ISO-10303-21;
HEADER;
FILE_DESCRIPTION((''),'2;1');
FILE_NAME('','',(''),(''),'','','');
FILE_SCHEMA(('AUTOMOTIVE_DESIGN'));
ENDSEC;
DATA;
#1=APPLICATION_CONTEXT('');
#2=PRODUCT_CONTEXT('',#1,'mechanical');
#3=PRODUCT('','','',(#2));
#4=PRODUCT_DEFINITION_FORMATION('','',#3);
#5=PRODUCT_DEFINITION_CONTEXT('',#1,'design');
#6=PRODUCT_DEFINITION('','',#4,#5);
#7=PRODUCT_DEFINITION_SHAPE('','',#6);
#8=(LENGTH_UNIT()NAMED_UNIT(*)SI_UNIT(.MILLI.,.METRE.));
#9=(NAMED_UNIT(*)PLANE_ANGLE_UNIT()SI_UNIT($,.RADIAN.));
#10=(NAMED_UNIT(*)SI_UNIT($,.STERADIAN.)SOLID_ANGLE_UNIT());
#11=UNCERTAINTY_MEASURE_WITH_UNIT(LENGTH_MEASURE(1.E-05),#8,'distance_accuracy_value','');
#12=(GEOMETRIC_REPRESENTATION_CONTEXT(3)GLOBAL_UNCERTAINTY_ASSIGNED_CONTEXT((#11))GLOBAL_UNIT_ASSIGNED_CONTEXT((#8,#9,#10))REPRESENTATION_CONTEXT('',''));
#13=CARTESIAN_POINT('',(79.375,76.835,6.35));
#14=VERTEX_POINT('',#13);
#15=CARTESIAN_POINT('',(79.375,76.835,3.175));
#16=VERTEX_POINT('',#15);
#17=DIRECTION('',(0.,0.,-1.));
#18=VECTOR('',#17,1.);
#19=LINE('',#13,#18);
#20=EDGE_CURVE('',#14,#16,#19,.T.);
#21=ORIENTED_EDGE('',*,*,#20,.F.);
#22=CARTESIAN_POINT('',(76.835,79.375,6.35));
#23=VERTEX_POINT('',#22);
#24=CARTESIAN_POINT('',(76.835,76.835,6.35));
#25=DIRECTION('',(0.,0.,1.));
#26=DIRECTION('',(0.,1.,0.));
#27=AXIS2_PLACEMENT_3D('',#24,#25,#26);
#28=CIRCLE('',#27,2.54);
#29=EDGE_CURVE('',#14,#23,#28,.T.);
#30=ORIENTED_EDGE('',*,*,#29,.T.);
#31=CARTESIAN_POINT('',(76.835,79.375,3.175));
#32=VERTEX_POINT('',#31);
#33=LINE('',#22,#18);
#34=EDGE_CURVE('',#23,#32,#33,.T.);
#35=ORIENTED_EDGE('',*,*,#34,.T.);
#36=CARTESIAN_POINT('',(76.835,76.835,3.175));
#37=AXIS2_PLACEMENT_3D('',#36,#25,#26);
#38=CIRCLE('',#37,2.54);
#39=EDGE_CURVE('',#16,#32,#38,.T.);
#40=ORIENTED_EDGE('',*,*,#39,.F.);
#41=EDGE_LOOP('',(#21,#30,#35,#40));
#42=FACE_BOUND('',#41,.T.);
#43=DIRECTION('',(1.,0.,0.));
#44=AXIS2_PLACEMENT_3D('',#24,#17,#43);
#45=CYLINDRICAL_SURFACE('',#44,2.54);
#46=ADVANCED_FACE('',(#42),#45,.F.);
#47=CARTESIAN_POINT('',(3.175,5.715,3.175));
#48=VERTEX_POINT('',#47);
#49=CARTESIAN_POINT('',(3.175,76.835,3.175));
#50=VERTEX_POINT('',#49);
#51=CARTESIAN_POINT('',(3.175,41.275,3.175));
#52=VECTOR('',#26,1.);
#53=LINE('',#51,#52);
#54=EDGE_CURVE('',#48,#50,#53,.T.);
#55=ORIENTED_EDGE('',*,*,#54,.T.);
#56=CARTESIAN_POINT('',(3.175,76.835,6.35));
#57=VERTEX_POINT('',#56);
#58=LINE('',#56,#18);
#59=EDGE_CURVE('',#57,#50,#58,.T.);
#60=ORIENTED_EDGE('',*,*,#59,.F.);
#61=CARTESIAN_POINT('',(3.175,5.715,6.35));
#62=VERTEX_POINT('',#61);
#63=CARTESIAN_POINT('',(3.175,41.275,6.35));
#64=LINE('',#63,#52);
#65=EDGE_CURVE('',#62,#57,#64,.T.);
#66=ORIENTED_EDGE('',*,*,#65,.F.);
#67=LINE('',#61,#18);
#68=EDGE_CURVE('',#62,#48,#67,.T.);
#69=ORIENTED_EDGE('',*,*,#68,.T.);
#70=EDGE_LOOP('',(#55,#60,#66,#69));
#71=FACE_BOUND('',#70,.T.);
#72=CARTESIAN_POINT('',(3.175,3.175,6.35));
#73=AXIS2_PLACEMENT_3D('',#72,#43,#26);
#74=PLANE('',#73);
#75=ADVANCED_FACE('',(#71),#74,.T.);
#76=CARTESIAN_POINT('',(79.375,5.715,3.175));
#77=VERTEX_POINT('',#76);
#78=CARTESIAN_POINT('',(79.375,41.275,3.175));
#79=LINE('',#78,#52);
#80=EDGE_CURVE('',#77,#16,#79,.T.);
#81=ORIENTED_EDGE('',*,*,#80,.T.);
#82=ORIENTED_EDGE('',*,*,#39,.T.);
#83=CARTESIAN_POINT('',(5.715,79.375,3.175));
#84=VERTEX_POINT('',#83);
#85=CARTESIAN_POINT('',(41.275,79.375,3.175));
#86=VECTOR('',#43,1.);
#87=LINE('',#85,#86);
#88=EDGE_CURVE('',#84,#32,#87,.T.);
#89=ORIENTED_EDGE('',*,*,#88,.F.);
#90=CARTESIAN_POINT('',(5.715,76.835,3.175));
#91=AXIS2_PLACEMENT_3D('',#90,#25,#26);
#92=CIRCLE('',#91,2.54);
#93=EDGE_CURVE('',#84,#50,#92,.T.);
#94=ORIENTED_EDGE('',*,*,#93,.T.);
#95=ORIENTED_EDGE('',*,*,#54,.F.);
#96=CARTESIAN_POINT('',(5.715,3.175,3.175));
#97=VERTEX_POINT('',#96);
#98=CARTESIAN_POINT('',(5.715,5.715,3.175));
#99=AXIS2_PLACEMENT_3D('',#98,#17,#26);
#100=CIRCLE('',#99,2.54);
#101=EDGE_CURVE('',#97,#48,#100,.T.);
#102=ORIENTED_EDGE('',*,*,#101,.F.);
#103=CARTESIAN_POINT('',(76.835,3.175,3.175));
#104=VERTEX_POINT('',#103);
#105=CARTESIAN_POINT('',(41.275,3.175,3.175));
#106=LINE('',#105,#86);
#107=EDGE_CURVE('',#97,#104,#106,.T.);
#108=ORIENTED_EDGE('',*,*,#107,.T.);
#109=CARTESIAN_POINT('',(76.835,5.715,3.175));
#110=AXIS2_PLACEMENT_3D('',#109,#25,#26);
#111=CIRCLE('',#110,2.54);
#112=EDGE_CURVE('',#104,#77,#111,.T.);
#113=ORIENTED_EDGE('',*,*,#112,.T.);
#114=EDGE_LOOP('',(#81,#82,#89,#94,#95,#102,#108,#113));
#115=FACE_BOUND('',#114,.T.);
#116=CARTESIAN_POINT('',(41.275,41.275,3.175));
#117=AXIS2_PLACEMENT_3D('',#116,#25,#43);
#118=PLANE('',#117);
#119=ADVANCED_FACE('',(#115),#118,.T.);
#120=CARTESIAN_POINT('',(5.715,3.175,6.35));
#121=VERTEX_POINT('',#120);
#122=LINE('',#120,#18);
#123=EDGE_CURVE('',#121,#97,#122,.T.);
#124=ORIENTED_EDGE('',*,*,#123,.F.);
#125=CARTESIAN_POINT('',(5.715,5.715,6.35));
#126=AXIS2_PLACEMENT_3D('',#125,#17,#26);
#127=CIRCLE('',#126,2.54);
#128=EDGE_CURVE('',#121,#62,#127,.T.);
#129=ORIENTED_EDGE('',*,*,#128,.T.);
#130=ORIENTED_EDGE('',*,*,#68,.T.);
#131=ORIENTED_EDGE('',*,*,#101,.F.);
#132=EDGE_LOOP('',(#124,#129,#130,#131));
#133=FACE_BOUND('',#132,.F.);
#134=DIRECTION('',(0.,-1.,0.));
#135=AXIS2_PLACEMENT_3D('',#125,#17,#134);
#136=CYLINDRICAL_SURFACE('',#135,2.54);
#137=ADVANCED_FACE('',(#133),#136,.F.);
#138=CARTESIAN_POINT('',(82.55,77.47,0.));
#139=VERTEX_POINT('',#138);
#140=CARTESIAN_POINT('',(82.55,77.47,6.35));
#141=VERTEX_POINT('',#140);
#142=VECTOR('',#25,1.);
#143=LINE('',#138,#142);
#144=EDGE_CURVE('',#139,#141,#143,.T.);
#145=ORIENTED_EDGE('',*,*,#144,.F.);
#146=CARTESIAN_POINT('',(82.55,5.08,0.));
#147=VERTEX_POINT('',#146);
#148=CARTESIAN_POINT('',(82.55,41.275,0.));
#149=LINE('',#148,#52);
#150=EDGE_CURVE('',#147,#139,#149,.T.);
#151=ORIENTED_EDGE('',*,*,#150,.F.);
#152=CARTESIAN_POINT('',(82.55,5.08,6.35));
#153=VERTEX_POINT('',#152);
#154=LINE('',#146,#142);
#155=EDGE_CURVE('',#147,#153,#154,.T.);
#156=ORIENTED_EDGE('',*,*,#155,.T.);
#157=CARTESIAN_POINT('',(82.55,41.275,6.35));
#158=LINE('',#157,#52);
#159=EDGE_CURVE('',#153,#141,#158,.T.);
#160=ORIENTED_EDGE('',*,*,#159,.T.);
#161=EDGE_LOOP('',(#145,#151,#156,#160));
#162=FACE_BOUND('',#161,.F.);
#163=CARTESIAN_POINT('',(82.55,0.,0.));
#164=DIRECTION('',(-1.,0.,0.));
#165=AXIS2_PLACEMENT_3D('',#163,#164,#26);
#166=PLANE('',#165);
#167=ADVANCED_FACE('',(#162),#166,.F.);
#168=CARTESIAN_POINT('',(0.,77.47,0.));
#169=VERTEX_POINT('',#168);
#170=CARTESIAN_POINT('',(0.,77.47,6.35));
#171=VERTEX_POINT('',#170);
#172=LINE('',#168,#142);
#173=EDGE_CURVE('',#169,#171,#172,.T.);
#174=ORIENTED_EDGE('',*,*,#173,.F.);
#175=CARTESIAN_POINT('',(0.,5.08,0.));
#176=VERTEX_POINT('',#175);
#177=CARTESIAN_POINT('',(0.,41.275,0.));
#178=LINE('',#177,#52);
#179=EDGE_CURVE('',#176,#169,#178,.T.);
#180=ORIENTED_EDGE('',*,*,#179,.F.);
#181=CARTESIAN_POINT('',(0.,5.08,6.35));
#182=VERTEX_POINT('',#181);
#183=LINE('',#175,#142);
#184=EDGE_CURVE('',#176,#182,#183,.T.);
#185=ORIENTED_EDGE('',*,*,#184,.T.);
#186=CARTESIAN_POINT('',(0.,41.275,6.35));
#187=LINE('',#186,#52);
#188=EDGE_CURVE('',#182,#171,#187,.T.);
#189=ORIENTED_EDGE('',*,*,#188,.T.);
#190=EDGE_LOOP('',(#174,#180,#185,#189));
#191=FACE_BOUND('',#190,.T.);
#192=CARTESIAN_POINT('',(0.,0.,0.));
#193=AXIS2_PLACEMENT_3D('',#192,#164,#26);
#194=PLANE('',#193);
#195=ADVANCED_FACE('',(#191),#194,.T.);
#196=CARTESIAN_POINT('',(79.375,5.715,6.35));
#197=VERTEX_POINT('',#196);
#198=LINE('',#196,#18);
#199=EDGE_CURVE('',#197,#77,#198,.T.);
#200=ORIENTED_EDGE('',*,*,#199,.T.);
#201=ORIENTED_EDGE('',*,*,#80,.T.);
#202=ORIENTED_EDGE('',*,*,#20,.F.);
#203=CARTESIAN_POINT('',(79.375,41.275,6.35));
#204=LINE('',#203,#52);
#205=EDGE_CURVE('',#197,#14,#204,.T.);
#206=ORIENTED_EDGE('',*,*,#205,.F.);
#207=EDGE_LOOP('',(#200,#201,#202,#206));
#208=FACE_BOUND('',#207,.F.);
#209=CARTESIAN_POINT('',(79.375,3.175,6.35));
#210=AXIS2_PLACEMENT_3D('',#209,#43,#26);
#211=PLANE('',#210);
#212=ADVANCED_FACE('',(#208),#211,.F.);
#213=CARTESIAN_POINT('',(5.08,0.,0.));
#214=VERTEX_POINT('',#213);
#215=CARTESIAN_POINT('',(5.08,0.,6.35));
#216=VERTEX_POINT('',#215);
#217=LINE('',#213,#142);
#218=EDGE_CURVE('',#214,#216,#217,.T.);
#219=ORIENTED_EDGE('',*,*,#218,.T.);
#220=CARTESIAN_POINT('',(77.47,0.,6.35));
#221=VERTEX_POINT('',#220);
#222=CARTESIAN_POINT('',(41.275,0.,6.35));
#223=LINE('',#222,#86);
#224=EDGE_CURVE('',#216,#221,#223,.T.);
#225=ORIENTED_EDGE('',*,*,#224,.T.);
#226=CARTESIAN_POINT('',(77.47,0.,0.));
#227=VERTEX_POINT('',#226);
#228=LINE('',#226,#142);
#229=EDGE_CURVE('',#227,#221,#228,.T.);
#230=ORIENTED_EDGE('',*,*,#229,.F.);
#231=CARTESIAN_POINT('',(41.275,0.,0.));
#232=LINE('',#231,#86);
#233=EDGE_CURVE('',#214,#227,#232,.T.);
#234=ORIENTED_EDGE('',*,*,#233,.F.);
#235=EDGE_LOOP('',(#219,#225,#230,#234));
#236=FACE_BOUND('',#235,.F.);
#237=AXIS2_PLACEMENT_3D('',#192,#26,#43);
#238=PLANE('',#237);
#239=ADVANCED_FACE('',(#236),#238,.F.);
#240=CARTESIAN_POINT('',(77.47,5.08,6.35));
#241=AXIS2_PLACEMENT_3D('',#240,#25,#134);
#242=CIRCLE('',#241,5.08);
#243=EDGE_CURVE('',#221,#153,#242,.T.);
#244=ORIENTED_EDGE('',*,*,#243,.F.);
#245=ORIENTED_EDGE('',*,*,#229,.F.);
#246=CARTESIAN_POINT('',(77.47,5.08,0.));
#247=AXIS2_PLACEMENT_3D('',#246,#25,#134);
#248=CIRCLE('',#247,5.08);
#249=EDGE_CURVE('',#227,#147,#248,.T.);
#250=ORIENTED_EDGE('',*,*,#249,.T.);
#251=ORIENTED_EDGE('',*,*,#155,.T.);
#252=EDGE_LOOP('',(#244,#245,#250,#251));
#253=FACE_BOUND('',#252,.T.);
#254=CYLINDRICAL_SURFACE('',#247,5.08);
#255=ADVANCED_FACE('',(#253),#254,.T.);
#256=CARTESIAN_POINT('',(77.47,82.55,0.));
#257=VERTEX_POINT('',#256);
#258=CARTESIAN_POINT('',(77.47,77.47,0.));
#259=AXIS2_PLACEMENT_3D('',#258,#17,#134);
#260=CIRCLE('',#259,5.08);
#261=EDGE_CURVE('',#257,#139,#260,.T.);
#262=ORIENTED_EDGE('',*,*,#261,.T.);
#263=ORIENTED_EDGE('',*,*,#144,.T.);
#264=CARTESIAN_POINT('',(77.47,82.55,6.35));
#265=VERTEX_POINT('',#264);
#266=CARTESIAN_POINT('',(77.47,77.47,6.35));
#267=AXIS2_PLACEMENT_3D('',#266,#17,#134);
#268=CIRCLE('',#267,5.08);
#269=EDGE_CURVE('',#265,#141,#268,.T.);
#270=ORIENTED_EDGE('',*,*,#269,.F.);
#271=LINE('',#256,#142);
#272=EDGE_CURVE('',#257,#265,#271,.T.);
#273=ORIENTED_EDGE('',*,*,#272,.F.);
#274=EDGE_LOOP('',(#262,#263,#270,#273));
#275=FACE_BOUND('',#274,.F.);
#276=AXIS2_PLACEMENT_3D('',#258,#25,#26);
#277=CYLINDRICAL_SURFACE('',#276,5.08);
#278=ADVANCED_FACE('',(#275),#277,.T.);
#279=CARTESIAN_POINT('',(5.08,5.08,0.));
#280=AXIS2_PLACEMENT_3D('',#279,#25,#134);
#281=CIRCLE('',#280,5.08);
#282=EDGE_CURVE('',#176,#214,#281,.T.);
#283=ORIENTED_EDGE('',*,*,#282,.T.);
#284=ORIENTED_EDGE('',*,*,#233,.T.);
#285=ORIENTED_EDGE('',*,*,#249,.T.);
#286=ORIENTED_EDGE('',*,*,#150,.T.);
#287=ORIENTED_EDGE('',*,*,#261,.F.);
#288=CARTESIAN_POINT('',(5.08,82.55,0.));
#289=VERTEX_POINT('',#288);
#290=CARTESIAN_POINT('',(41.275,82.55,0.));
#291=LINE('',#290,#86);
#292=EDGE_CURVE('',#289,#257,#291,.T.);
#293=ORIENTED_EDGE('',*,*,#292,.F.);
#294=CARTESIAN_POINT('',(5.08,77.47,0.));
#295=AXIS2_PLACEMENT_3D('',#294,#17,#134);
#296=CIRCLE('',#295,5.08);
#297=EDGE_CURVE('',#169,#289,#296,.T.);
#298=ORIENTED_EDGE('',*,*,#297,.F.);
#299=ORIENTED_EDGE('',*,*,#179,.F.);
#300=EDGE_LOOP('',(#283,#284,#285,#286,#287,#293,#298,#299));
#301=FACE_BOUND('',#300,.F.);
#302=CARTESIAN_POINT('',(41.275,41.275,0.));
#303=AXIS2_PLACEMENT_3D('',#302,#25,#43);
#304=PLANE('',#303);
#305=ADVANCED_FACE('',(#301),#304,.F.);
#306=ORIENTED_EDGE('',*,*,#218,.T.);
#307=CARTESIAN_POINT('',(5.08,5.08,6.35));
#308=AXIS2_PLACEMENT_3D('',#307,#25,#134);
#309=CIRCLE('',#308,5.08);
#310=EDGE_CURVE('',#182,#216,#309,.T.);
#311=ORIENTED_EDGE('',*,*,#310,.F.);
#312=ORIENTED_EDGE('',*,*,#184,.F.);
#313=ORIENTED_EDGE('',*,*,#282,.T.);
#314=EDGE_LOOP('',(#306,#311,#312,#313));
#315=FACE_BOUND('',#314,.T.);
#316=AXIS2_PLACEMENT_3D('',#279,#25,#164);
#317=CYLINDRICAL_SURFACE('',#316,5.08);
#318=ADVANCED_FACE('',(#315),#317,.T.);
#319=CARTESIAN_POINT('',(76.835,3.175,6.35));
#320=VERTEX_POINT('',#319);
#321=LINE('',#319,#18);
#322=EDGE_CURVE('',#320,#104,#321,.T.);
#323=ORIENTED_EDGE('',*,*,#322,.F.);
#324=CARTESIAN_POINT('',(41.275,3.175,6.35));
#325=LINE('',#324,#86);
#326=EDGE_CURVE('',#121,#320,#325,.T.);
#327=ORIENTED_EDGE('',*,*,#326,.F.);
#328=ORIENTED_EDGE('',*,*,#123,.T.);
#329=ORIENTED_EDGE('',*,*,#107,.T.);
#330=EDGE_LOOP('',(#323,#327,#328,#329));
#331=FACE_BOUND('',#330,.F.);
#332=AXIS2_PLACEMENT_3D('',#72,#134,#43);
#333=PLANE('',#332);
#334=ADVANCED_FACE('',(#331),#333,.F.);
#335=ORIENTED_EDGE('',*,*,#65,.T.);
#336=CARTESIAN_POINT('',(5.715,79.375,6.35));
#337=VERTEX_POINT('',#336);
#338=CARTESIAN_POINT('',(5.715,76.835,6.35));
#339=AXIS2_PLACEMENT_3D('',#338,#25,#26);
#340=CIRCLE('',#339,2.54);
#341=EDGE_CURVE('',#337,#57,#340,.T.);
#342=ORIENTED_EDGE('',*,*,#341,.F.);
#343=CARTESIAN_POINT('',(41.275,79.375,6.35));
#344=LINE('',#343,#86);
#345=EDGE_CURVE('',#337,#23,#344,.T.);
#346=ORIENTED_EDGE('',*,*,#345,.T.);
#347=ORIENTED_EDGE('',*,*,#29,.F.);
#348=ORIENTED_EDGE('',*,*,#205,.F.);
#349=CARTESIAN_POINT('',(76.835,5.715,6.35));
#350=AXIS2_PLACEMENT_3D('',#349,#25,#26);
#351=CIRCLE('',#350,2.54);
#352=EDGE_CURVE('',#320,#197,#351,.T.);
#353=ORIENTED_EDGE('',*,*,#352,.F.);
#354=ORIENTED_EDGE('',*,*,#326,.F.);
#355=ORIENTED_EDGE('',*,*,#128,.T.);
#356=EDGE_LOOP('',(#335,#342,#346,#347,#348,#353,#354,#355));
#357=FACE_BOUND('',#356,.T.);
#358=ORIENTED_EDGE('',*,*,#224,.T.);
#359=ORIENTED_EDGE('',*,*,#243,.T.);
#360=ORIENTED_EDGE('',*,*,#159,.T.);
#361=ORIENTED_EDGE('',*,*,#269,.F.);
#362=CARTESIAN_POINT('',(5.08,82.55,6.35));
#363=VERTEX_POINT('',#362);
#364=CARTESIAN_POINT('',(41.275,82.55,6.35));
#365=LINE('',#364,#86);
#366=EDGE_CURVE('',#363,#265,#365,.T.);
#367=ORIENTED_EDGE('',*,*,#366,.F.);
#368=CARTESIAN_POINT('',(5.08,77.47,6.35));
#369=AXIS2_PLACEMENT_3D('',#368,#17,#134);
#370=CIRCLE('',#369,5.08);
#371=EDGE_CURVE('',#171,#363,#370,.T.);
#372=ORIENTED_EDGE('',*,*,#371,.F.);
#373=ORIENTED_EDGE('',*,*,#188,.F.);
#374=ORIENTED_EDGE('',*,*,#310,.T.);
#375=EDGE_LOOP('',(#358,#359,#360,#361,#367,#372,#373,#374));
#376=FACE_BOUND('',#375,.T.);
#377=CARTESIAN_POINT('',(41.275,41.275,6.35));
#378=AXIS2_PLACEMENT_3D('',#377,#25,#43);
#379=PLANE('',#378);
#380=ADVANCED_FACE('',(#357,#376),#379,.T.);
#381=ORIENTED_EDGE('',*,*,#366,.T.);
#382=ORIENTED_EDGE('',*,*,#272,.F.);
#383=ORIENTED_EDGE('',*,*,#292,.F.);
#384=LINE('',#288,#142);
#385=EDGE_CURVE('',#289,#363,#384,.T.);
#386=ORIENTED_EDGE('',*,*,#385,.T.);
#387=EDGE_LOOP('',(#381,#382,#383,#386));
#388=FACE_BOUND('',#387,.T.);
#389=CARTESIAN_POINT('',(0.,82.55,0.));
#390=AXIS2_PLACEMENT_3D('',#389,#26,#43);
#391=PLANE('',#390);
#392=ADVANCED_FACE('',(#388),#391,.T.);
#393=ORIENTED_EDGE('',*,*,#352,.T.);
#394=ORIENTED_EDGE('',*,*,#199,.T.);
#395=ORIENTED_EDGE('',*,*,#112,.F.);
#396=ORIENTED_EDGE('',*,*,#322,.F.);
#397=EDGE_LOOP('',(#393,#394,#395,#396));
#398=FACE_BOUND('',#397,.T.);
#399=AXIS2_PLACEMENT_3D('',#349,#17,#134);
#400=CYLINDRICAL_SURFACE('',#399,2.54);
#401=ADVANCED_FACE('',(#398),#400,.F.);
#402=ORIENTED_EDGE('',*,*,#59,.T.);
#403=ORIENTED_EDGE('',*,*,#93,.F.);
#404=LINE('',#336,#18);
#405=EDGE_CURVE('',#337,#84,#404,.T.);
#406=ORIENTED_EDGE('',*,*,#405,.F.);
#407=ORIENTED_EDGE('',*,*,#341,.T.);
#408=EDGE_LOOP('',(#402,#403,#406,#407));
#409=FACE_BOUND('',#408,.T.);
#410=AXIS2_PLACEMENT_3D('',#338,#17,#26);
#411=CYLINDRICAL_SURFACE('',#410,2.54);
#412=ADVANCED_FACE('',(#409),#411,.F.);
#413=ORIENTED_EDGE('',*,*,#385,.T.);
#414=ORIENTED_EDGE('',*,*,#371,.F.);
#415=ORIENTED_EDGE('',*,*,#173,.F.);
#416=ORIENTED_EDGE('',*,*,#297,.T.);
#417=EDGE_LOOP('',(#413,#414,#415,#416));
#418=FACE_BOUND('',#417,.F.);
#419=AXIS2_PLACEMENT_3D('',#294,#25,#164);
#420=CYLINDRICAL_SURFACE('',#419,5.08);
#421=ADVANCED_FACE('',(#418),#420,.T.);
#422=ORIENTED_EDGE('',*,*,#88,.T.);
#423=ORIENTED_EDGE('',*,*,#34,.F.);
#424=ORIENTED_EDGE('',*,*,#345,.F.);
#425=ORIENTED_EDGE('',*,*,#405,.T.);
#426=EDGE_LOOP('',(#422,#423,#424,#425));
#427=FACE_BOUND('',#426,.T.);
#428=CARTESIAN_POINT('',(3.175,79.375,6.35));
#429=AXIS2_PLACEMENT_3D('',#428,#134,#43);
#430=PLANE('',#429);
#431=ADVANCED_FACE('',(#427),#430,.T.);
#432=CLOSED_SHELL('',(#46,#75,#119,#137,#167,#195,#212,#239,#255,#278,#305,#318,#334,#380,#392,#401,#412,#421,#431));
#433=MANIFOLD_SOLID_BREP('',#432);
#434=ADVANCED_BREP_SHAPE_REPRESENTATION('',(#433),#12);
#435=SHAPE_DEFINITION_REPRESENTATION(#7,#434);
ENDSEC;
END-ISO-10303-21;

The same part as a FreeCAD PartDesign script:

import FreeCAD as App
import Part
import Sketcher

V = App.Vector
Q = App.Units.Quantity


def edges_at(feature, points):
    """Names of the edges that pass closest to the given points."""
    edges = feature.Shape.Edges
    near = lambda p: min(range(len(edges)), key=lambda i: edges[i].distToShape(Part.Vertex(*p))[0])
    return sorted({f"Edge{near(p) + 1}" for p in points})

doc = App.newDocument("Part")
body = doc.addObject("PartDesign::Body", "Body")

# Sketch on XY plane
sketch1 = body.newObject("Sketcher::SketchObject", "Sketch")
sketch1.AttachmentSupport = (doc.getObject("XY_Plane"), [""])
sketch1.MapMode = "FlatFace"
sketch1.addGeometry([
    Part.LineSegment(V(0, 82.55, 0), V(0, 0, 0)),
    Part.LineSegment(V(0, 0, 0), V(82.55, 0, 0)),
    Part.LineSegment(V(82.55, 0, 0), V(82.55, 82.55, 0)),
    Part.LineSegment(V(82.55, 82.55, 0), V(0, 82.55, 0)),
], False)
sketch1.addConstraint([
    Sketcher.Constraint("Coincident", 0, 2, 1, 1),
    Sketcher.Constraint("Coincident", 1, 2, 2, 1),
    Sketcher.Constraint("Coincident", 2, 2, 3, 1),
    Sketcher.Constraint("Coincident", 3, 2, 0, 1),
    Sketcher.Constraint("Vertical", 0),
    Sketcher.Constraint("Horizontal", 1),
    Sketcher.Constraint("Vertical", 2),
    Sketcher.Constraint("Horizontal", 3),
    Sketcher.Constraint("Coincident", 0, 2, -1, 1),
    Sketcher.Constraint("Equal", 3, 0),
    Sketcher.Constraint("DistanceX", 1, 1, 1, 2, Q("3.25 in")),
])
pad1 = body.newObject("PartDesign::Pad", "Pad")
pad1.Profile = sketch1
pad1.Length = Q("0.25 in")

# Sketch on XY plane
sketch2 = body.newObject("Sketcher::SketchObject", "Sketch001")
sketch2.AttachmentSupport = (doc.getObject("XY_Plane"), [""])
sketch2.MapMode = "FlatFace"
sketch2.AttachmentOffset = App.Placement(V(0, 0, 0.25 * 25.4), App.Rotation())
sketch2.addGeometry([
    Part.LineSegment(V(3.175, 79.375, 0), V(3.175, 3.175, 0)),
    Part.LineSegment(V(3.175, 3.175, 0), V(79.375, 3.175, 0)),
    Part.LineSegment(V(79.375, 3.175, 0), V(79.375, 79.375, 0)),
    Part.LineSegment(V(79.375, 79.375, 0), V(3.175, 79.375, 0)),
], False)
sketch2.addConstraint([
    Sketcher.Constraint("Coincident", 0, 2, 1, 1),
    Sketcher.Constraint("Coincident", 1, 2, 2, 1),
    Sketcher.Constraint("Coincident", 2, 2, 3, 1),
    Sketcher.Constraint("Coincident", 3, 2, 0, 1),
    Sketcher.Constraint("Vertical", 0),
    Sketcher.Constraint("Horizontal", 1),
    Sketcher.Constraint("Vertical", 2),
    Sketcher.Constraint("Horizontal", 3),
    Sketcher.Constraint("Equal", 3, 0),
    Sketcher.Constraint("DistanceX", 1, 1, 1, 2, Q("3 in")),
    Sketcher.Constraint("DistanceX", -1, 1, 0, 2, Q("0.125 in")),
    Sketcher.Constraint("DistanceY", -1, 1, 0, 2, Q("0.125 in")),
])
pocket1 = body.newObject("PartDesign::Pocket", "Pocket")
pocket1.Profile = sketch2
pocket1.Length = Q("0.125 in")
doc.recompute()

fillet = body.newObject("PartDesign::Fillet", "Fillet")
fillet.Base = (pocket1, edges_at(pocket1, [
    (0, 0, 3.175),
    (82.55, 0, 3.175),
    (82.55, 82.55, 3.175),
    (0, 82.55, 3.175),
]))
fillet.Radius = Q("0.2 in")
doc.recompute()

fillet2 = body.newObject("PartDesign::Fillet", "Fillet001")
fillet2.Base = (fillet, edges_at(fillet, [
    (79.375, 3.175, 4.763),
    (3.175, 3.175, 4.763),
    (3.175, 79.375, 4.763),
    (79.375, 79.375, 4.763),
]))
fillet2.Radius = Q("0.1 in")

doc.recompute()
